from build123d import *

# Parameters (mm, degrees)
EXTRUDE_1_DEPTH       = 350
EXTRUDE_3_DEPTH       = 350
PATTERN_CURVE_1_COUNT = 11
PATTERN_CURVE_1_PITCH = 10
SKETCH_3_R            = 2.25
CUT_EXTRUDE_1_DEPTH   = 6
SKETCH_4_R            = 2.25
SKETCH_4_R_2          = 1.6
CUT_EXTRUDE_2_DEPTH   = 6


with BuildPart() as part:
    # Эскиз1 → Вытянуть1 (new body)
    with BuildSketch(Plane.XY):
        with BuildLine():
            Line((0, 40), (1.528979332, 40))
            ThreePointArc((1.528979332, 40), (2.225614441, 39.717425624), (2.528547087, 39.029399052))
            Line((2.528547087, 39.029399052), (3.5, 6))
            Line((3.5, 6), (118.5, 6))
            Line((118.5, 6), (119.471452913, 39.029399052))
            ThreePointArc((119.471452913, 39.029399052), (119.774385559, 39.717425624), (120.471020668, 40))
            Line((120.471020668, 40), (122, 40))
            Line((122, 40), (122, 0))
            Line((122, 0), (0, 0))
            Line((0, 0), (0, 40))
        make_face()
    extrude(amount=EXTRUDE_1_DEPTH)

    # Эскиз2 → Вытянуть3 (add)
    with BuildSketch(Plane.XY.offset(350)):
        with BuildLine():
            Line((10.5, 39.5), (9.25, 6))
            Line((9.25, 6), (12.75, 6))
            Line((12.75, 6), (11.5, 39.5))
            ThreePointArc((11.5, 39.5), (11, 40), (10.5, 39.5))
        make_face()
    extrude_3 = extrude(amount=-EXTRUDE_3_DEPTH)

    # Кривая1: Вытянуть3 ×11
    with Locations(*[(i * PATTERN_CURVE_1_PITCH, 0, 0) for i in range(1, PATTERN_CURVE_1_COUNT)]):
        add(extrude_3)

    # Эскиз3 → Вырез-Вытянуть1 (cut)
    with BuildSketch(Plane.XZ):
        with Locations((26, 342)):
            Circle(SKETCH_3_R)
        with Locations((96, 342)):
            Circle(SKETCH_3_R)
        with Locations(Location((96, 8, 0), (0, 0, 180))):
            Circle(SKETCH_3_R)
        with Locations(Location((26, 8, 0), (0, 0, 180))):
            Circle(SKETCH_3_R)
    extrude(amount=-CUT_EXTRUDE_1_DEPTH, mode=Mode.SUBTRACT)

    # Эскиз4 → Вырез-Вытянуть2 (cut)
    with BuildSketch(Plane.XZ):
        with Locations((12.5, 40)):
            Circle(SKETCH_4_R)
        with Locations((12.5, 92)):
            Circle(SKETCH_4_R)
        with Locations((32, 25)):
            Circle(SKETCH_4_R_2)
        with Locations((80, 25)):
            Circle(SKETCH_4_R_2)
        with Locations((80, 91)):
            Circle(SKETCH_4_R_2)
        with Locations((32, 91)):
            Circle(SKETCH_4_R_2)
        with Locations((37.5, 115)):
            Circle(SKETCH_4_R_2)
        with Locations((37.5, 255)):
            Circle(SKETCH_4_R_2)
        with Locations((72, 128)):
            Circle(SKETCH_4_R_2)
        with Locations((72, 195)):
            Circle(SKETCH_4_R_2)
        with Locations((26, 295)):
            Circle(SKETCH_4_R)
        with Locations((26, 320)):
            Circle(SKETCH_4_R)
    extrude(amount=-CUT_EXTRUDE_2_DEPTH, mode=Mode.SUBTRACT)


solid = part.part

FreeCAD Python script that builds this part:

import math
import FreeCAD as App
import Part
import Sketcher
from FreeCAD import Vector

doc = App.newDocument("Part")
body = doc.addObject("PartDesign::Body", "Body")

# Sketch on XY plane
sketch1 = body.newObject("Sketcher::SketchObject", "Sketch")
sketch1.AttachmentSupport = (doc.getObject("XY_Plane"), [""])
sketch1.MapMode = "FlatFace"
sketch1.addGeometry(Part.LineSegment(Vector(1.528979, 40, 0), Vector(0, 40, 0)), False)
sketch1.addGeometry(Part.LineSegment(Vector(0, 40, 0), Vector(0, 0, 0)), False)
sketch1.addGeometry(Part.LineSegment(Vector(0, 0, 0), Vector(122, 0, 0)), False)
sketch1.addGeometry(Part.LineSegment(Vector(122, 0, 0), Vector(122, 40, 0)), False)
sketch1.addGeometry(Part.LineSegment(Vector(122, 40, 0), Vector(120.471021, 40, 0)), False)
sketch1.addGeometry(Part.ArcOfCircle(Part.Circle(Vector(120.471021, 39, 0), Vector(0, 0, 1), 1), math.radians(90), math.radians(178.315316)), False)
sketch1.addGeometry(Part.LineSegment(Vector(119.471453, 39.029399, 0), Vector(118.5, 6, 0)), False)
sketch1.addGeometry(Part.LineSegment(Vector(118.5, 6, 0), Vector(3.5, 6, 0)), False)
sketch1.addGeometry(Part.LineSegment(Vector(3.5, 6, 0), Vector(2.528547, 39.029399, 0)), False)
sketch1.addGeometry(Part.ArcOfCircle(Part.Circle(Vector(1.528979, 39, 0), Vector(0, 0, 1), 1), math.radians(1.684684), math.radians(90)), False)
sketch1.addConstraint(Sketcher.Constraint("Coincident", 0, 2, 1, 1))
sketch1.addConstraint(Sketcher.Constraint("Coincident", 1, 2, 2, 1))
sketch1.addConstraint(Sketcher.Constraint("Coincident", 2, 2, 3, 1))
sketch1.addConstraint(Sketcher.Constraint("Coincident", 3, 2, 4, 1))
sketch1.addConstraint(Sketcher.Constraint("Tangent", 4, 2, 5, 1))
sketch1.addConstraint(Sketcher.Constraint("Tangent", 5, 2, 6, 1))
sketch1.addConstraint(Sketcher.Constraint("Coincident", 6, 2, 7, 1))
sketch1.addConstraint(Sketcher.Constraint("Coincident", 7, 2, 8, 1))
sketch1.addConstraint(Sketcher.Constraint("Tangent", 8, 2, 9, 1))
sketch1.addConstraint(Sketcher.Constraint("Tangent", 9, 2, 0, 1))
sketch1.addConstraint(Sketcher.Constraint("Horizontal", 0))
sketch1.addConstraint(Sketcher.Constraint("Vertical", 1))
sketch1.addConstraint(Sketcher.Constraint("Horizontal", 2))
sketch1.addConstraint(Sketcher.Constraint("Vertical", 3))
sketch1.addConstraint(Sketcher.Constraint("Horizontal", 4))
sketch1.addConstraint(Sketcher.Constraint("Horizontal", 7))
sketch1.addConstraint(Sketcher.Constraint("Coincident", 1, 2, -1, 1))
sketch1.addConstraint(Sketcher.Constraint("Equal", 5, 9))
sketch1.addConstraint(Sketcher.Constraint("Horizontal", 5, 3, 9, 3))
sketch1.addConstraint(Sketcher.Constraint("Horizontal", 5, 2, 8, 2))
sketch1.addConstraint(Sketcher.Constraint("Equal", 0, 4))
sketch1.addConstraint(Sketcher.Constraint("Radius", 5, 1.0))
sketch1.addConstraint(Sketcher.Constraint("DistanceX", 2, 1, 2, 2, 122.0))
sketch1.addConstraint(Sketcher.Constraint("DistanceX", 7, 2, 7, 1, 115.0))
sketch1.addConstraint(Sketcher.Constraint("DistanceY", 1, 2, 1, 1, 40.0))
sketch1.addConstraint(Sketcher.Constraint("DistanceY", -1, 1, 6, 2, 6.0))
sketch1.addConstraint(Sketcher.Constraint("DistanceX", 0, 2, 0, 1, 1.528979))
pad1 = body.newObject("PartDesign::Pad", "Pad")
pad1.Profile = sketch1
pad1.Length = 350

# Sketch on XY plane
sketch2 = body.newObject("Sketcher::SketchObject", "Sketch001")
sketch2.AttachmentSupport = (doc.getObject("XY_Plane"), [""])
sketch2.MapMode = "FlatFace"
sketch2.AttachmentOffset = App.Placement(Vector(0, 0, 350), App.Rotation())
sketch2.addGeometry(Part.LineSegment(Vector(10.5, 39.5, 0), Vector(9.25, 6, 0)), False)
sketch2.addGeometry(Part.LineSegment(Vector(9.25, 6, 0), Vector(12.75, 6, 0)), False)
sketch2.addGeometry(Part.LineSegment(Vector(12.75, 6, 0), Vector(11.5, 39.5, 0)), False)
sketch2.addGeometry(Part.ArcOfCircle(Part.Circle(Vector(11, 39.5, 0), Vector(0, 0, 1), 0.5), math.radians(0), math.radians(180)), False)
sketch2.addConstraint(Sketcher.Constraint("Coincident", 0, 2, 1, 1))
sketch2.addConstraint(Sketcher.Constraint("Coincident", 1, 2, 2, 1))
sketch2.addConstraint(Sketcher.Constraint("Coincident", 2, 2, 3, 1))
sketch2.addConstraint(Sketcher.Constraint("Coincident", 3, 2, 0, 1))
sketch2.addConstraint(Sketcher.Constraint("Horizontal", 1))
sketch2.addConstraint(Sketcher.Constraint("Horizontal", 3, 3, 2, 2))
sketch2.addConstraint(Sketcher.Constraint("Horizontal", 2, 2, 3, 2))
sketch2.addConstraint(Sketcher.Constraint("Equal", 0, 2))
sketch2.addConstraint(Sketcher.Constraint("Radius", 3, 0.5))
sketch2.addConstraint(Sketcher.Constraint("DistanceX", 1, 1, 1, 2, 3.5))
sketch2.addConstraint(Sketcher.Constraint("DistanceX", -1, 1, 3, 3, 11.0))
sketch2.addConstraint(Sketcher.Constraint("DistanceY", -1, 1, 0, 2, 6.0))
sketch2.addConstraint(Sketcher.Constraint("DistanceY", -1, 1, 3, 3, 39.5))
pad2 = body.newObject("PartDesign::Pad", "Pad001")
pad2.Profile = sketch2
pad2.Length = 350
pad2.Reversed = True
doc.recompute()

linearpattern = body.newObject("PartDesign::LinearPattern", "LinearPattern")
linearpattern.Originals = [pad2]
linearpattern.Direction = (doc.getObject("X_Axis"), [""])
linearpattern.Mode = "offset"
linearpattern.Offset = 10
linearpattern.Occurrences = 11
body.Tip = linearpattern

# Sketch on XZ plane
sketch3 = body.newObject("Sketcher::SketchObject", "Sketch002")
sketch3.AttachmentSupport = (doc.getObject("XZ_Plane"), [""])
sketch3.MapMode = "FlatFace"
sketch3.addGeometry(Part.Circle(Vector(26, 342, 0), Vector(0, 0, 1), 2.25), False)
sketch3.addGeometry(Part.Circle(Vector(96, 342, 0), Vector(0, 0, 1), 2.25), False)
sketch3.addGeometry(Part.Circle(Vector(96, 8, 0), Vector(0, 0, 1), 2.25), False)
sketch3.addGeometry(Part.Circle(Vector(26, 8, 0), Vector(0, 0, 1), 2.25), False)
sketch3.addConstraint(Sketcher.Constraint("Equal", 0, 1))
sketch3.addConstraint(Sketcher.Constraint("Equal", 1, 2))
sketch3.addConstraint(Sketcher.Constraint("Equal", 2, 3))
sketch3.addConstraint(Sketcher.Constraint("Horizontal", 0, 3, 1, 3))
sketch3.addConstraint(Sketcher.Constraint("Horizontal", 2, 3, 3, 3))
sketch3.addConstraint(Sketcher.Constraint("Vertical", 1, 3, 2, 3))
sketch3.addConstraint(Sketcher.Constraint("Vertical", 0, 3, 3, 3))
sketch3.addConstraint(Sketcher.Constraint("Diameter", 0, 4.5))
sketch3.addConstraint(Sketcher.Constraint("DistanceX", -1, 1, 0, 3, 26.0))
sketch3.addConstraint(Sketcher.Constraint("DistanceY", -1, 1, 0, 3, 342.0))
sketch3.addConstraint(Sketcher.Constraint("DistanceX", -1, 1, 1, 3, 96.0))
sketch3.addConstraint(Sketcher.Constraint("DistanceY", -1, 1, 2, 3, 8.0))
pocket1 = body.newObject("PartDesign::Pocket", "Pocket")
pocket1.Profile = sketch3
pocket1.Length = 6

# Sketch on XZ plane
sketch4 = body.newObject("Sketcher::SketchObject", "Sketch003")
sketch4.AttachmentSupport = (doc.getObject("XZ_Plane"), [""])
sketch4.MapMode = "FlatFace"
sketch4.addGeometry(Part.Circle(Vector(12.5, 40, 0), Vector(0, 0, 1), 2.25), False)
sketch4.addGeometry(Part.Circle(Vector(12.5, 92, 0), Vector(0, 0, 1), 2.25), False)
sketch4.addGeometry(Part.Circle(Vector(32, 25, 0), Vector(0, 0, 1), 1.6), False)
sketch4.addGeometry(Part.Circle(Vector(80, 25, 0), Vector(0, 0, 1), 1.6), False)
sketch4.addGeometry(Part.Circle(Vector(80, 91, 0), Vector(0, 0, 1), 1.6), False)
sketch4.addGeometry(Part.Circle(Vector(32, 91, 0), Vector(0, 0, 1), 1.6), False)
sketch4.addGeometry(Part.Circle(Vector(37.5, 115, 0), Vector(0, 0, 1), 1.6), False)
sketch4.addGeometry(Part.Circle(Vector(37.5, 255, 0), Vector(0, 0, 1), 1.6), False)
sketch4.addGeometry(Part.Circle(Vector(72, 128, 0), Vector(0, 0, 1), 1.6), False)
sketch4.addGeometry(Part.Circle(Vector(72, 195, 0), Vector(0, 0, 1), 1.6), False)
sketch4.addGeometry(Part.Circle(Vector(26, 295, 0), Vector(0, 0, 1), 2.25), False)
sketch4.addGeometry(Part.Circle(Vector(26, 320, 0), Vector(0, 0, 1), 2.25), False)
sketch4.addConstraint(Sketcher.Constraint("Equal", 0, 1))
sketch4.addConstraint(Sketcher.Constraint("Equal", 2, 3))
sketch4.addConstraint(Sketcher.Constraint("Equal", 3, 4))
sketch4.addConstraint(Sketcher.Constraint("Equal", 4, 5))
sketch4.addConstraint(Sketcher.Constraint("Equal", 5, 6))
sketch4.addConstraint(Sketcher.Constraint("Equal", 6, 7))
sketch4.addConstraint(Sketcher.Constraint("Equal", 7, 8))
sketch4.addConstraint(Sketcher.Constraint("Equal", 8, 9))
sketch4.addConstraint(Sketcher.Constraint("Equal", 1, 10))
sketch4.addConstraint(Sketcher.Constraint("Equal", 10, 11))
sketch4.addConstraint(Sketcher.Constraint("Horizontal", 2, 3, 3, 3))
sketch4.addConstraint(Sketcher.Constraint("Horizontal", 4, 3, 5, 3))
sketch4.addConstraint(Sketcher.Constraint("Vertical", 0, 3, 1, 3))
sketch4.addConstraint(Sketcher.Constraint("Vertical", 3, 3, 4, 3))
sketch4.addConstraint(Sketcher.Constraint("Vertical", 2, 3, 5, 3))
sketch4.addConstraint(Sketcher.Constraint("Vertical", 6, 3, 7, 3))
sketch4.addConstraint(Sketcher.Constraint("Vertical", 8, 3, 9, 3))
sketch4.addConstraint(Sketcher.Constraint("Vertical", 10, 3, 11, 3))
sketch4.addConstraint(Sketcher.Constraint("Diameter", 0, 4.5))
sketch4.addConstraint(Sketcher.Constraint("Diameter", 2, 3.2))
sketch4.addConstraint(Sketcher.Constraint("DistanceY", -1, 1, 0, 3, 40.0))
sketch4.addConstraint(Sketcher.Constraint("DistanceY", -1, 1, 1, 3, 92.0))
sketch4.addConstraint(Sketcher.Constraint("DistanceX", -1, 1, 2, 3, 32.0))
sketch4.addConstraint(Sketcher.Constraint("DistanceY", -1, 1, 2, 3, 25.0))
sketch4.addConstraint(Sketcher.Constraint("DistanceX", -1, 1, 3, 3, 80.0))
sketch4.addConstraint(Sketcher.Constraint("DistanceY", -1, 1, 4, 3, 91.0))
sketch4.addConstraint(Sketcher.Constraint("DistanceY", -1, 1, 6, 3, 115.0))
sketch4.addConstraint(Sketcher.Constraint("DistanceY", -1, 1, 7, 3, 255.0))
sketch4.addConstraint(Sketcher.Constraint("DistanceX", -1, 1, 8, 3, 72.0))
sketch4.addConstraint(Sketcher.Constraint("DistanceY", -1, 1, 8, 3, 128.0))
sketch4.addConstraint(Sketcher.Constraint("DistanceY", -1, 1, 9, 3, 195.0))
sketch4.addConstraint(Sketcher.Constraint("DistanceX", -1, 1, 10, 3, 26.0))
sketch4.addConstraint(Sketcher.Constraint("DistanceY", -1, 1, 10, 3, 295.0))
sketch4.addConstraint(Sketcher.Constraint("DistanceY", -1, 1, 11, 3, 320.0))
sketch4.addConstraint(Sketcher.Constraint("DistanceX", 1, 3, 6, 3, 25.0))
sketch4.addConstraint(Sketcher.Constraint("DistanceX", -1, 1, 0, 3, 12.5))
pocket2 = body.newObject("PartDesign::Pocket", "Pocket001")
pocket2.Profile = sketch4
pocket2.Length = 6

doc.recompute()
